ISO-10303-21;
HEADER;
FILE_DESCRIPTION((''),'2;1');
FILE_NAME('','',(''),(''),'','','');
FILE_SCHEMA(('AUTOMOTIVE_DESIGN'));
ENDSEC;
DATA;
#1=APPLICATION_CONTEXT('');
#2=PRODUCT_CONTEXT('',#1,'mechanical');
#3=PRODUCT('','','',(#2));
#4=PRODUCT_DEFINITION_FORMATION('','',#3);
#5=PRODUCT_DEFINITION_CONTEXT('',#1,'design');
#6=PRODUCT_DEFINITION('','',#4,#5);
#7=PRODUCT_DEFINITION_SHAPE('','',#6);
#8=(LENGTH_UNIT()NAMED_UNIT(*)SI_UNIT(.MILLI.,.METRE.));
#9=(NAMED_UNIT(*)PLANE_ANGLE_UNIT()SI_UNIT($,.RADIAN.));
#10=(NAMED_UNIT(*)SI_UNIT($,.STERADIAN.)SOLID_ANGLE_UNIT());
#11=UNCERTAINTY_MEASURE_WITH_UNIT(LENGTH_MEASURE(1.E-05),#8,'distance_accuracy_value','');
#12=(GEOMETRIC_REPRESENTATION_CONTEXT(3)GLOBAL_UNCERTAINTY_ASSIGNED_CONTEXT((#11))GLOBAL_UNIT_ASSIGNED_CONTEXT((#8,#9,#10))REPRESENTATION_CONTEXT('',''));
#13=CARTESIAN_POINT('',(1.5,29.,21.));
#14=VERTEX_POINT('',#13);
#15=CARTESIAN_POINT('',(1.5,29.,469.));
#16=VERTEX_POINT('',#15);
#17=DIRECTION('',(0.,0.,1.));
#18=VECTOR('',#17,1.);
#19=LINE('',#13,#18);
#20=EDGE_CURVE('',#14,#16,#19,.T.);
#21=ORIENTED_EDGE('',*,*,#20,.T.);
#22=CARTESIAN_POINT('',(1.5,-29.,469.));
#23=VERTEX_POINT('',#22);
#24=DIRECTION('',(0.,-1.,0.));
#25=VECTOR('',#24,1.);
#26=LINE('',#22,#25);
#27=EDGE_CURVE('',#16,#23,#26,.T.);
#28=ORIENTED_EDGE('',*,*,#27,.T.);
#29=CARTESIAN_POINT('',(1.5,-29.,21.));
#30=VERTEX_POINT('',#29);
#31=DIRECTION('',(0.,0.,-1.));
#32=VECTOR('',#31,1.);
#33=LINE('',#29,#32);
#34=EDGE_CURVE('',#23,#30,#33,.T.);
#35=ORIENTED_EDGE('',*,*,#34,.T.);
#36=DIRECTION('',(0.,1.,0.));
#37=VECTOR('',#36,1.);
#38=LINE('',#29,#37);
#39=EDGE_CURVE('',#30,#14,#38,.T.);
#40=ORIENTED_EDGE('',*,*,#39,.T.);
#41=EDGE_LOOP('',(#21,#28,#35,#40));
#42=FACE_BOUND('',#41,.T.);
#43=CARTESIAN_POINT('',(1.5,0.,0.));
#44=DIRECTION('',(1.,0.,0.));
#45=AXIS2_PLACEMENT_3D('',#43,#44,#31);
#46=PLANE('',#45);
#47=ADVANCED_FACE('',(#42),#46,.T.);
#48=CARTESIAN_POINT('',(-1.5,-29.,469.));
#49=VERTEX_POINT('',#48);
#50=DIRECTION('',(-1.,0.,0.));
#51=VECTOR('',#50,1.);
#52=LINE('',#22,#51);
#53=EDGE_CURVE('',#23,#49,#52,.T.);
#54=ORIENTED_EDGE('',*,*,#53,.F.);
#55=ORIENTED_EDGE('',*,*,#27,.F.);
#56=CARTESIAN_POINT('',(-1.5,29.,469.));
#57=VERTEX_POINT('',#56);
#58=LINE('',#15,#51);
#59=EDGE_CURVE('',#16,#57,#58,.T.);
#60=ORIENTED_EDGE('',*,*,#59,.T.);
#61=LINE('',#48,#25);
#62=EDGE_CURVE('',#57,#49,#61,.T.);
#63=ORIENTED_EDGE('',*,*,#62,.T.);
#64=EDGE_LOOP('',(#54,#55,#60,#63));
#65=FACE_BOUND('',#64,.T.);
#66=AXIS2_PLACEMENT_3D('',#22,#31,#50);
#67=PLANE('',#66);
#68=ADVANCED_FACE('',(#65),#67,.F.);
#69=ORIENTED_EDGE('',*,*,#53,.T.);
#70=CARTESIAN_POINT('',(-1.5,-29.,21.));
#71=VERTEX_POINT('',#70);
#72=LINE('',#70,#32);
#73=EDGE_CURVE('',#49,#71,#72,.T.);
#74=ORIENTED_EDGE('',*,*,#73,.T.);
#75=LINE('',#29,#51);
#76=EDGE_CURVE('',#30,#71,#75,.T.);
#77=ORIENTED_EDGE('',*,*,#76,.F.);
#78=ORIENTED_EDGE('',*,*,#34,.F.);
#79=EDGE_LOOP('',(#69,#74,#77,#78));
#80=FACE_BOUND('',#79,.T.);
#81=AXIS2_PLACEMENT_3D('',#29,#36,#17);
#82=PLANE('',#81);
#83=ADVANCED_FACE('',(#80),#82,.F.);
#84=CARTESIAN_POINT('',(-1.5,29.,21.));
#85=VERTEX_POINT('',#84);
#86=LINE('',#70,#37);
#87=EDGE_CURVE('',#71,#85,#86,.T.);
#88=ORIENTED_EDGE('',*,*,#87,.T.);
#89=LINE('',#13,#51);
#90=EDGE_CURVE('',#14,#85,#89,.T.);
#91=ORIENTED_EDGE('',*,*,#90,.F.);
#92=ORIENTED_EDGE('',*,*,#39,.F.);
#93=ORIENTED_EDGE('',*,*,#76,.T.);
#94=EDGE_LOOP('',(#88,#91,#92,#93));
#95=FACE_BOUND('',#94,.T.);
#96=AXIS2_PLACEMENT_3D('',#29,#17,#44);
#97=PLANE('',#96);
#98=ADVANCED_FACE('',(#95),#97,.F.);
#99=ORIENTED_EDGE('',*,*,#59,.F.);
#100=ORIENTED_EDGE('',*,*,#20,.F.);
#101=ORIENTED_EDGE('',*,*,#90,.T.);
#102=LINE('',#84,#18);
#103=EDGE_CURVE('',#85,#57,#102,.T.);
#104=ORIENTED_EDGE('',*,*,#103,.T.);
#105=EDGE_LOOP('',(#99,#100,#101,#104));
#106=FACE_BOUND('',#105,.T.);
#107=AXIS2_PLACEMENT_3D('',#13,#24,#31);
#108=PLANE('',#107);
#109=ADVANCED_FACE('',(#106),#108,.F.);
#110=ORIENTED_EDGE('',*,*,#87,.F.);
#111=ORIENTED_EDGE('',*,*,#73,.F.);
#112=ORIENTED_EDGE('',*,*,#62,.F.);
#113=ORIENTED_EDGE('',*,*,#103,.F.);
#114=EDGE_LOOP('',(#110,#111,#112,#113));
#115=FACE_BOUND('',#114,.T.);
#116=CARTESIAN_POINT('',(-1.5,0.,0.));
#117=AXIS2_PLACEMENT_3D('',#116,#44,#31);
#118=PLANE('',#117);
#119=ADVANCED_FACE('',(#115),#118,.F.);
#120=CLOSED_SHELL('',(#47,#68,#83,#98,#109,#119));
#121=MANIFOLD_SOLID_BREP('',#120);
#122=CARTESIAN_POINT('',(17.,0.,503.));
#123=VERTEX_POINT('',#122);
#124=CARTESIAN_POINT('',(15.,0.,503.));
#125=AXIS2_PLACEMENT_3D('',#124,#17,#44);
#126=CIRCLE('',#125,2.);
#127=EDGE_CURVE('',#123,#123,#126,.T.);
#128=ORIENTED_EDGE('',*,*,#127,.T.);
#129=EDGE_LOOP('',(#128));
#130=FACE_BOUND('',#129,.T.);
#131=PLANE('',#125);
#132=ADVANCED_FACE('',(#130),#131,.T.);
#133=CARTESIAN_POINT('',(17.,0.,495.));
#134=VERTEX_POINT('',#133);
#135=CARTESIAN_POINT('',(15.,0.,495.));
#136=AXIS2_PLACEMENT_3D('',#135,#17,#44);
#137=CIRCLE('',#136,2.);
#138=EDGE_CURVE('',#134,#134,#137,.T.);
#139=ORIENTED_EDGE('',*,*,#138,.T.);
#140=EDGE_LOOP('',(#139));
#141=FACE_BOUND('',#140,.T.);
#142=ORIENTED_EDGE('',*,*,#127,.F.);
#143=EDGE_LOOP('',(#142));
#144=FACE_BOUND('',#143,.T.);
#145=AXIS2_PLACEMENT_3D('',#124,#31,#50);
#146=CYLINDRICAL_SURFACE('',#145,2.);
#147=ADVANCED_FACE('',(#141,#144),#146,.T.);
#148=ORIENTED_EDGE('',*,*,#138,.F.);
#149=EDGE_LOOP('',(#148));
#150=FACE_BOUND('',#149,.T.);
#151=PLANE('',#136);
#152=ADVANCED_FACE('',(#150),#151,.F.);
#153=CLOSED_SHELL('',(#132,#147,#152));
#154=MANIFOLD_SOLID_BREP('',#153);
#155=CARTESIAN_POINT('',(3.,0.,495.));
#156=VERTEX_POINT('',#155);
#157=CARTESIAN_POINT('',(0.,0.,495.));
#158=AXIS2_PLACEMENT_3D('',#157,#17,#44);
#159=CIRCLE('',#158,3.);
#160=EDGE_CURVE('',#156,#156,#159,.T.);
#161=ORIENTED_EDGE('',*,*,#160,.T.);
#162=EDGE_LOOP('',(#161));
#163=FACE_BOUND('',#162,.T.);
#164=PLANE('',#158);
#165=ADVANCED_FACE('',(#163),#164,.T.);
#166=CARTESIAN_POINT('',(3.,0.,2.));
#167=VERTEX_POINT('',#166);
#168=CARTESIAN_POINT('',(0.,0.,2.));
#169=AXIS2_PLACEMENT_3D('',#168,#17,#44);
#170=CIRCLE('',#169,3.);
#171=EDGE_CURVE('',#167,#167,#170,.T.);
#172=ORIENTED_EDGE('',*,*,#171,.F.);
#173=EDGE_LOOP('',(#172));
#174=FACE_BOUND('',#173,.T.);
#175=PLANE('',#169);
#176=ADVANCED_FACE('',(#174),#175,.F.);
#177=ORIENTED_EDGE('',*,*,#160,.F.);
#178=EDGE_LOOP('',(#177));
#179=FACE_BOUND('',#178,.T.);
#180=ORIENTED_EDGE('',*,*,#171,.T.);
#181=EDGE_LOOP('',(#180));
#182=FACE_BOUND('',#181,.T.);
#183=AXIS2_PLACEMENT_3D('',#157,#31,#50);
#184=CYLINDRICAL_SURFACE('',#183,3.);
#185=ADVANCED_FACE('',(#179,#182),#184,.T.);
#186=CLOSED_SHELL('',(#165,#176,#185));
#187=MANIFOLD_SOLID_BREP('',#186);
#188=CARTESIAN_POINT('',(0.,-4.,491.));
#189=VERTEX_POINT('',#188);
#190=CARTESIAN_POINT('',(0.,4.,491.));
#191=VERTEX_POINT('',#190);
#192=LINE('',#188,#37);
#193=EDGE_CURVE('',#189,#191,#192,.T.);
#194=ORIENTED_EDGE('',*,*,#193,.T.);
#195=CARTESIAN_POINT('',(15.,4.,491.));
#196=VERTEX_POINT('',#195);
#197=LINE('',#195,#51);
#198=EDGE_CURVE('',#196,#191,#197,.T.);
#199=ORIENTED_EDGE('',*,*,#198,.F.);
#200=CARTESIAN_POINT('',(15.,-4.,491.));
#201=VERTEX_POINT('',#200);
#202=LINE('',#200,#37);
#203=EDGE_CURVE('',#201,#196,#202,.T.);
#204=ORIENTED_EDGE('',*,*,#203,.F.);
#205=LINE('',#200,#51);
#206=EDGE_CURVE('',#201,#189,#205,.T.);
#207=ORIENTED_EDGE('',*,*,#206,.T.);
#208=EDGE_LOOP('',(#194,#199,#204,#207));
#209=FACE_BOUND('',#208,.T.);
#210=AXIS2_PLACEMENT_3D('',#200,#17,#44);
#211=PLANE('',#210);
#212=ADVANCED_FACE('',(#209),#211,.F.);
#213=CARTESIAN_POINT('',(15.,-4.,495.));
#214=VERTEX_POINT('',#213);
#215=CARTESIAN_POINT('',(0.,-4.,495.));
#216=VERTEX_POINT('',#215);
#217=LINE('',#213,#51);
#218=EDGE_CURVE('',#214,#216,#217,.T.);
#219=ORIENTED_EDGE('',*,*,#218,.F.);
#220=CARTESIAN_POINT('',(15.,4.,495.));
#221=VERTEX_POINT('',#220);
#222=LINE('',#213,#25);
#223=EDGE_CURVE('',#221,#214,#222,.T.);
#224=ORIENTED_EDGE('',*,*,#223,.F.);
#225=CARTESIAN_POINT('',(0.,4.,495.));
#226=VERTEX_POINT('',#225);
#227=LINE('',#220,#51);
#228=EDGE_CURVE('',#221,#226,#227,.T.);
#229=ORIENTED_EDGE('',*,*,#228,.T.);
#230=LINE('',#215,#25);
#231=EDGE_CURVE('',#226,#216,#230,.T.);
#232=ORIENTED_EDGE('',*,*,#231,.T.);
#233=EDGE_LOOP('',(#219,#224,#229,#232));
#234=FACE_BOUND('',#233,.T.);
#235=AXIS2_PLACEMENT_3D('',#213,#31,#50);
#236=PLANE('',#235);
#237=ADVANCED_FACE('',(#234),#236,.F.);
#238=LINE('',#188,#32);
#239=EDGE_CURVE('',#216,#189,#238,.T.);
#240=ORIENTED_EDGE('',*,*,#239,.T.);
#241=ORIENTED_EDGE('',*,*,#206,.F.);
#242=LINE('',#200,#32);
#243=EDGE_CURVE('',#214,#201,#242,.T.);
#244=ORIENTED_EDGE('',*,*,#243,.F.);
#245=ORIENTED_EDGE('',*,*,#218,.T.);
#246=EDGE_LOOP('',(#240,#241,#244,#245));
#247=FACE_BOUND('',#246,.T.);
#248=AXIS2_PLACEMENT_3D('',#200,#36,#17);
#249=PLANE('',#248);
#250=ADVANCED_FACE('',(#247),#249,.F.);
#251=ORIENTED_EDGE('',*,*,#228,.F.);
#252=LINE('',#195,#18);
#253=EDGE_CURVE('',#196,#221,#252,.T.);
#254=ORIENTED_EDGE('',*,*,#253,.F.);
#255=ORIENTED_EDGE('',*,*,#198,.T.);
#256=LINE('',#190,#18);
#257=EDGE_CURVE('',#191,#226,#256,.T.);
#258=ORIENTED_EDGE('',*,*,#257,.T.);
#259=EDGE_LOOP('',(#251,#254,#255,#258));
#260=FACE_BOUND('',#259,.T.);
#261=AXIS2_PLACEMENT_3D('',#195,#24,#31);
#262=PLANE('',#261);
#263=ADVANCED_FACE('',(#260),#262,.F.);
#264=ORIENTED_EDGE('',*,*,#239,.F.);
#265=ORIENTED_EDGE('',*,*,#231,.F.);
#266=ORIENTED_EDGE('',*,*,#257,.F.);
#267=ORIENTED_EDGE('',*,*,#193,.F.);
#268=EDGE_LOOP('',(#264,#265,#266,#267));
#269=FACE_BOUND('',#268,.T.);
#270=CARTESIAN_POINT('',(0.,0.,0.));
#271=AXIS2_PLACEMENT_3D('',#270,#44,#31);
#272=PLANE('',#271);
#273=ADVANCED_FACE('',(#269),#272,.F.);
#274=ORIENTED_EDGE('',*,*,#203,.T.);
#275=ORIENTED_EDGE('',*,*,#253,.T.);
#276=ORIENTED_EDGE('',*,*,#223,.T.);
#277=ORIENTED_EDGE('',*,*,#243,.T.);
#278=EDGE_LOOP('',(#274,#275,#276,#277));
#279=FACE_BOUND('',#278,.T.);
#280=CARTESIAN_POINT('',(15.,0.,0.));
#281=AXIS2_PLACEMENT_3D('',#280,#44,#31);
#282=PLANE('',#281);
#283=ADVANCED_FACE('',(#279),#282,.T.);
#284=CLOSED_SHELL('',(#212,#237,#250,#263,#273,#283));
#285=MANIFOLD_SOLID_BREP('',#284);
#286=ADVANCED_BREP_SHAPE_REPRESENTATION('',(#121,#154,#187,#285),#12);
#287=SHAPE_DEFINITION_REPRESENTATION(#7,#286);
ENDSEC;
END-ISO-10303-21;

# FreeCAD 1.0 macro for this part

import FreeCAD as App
import Part
import Sketcher

V = App.Vector
Q = App.Units.Quantity


def add_polygon(sketch, points):
    """Adds a closed chain of lines whose ends are joined by coincident constraints."""
    first, n = sketch.GeometryCount, len(points)
    for a, b in zip(points, points[1:] + points[:1]):
        sketch.addGeometry(Part.LineSegment(App.Vector(*a, 0), App.Vector(*b, 0)), False)
    for i in range(n):
        sketch.addConstraint(Sketcher.Constraint("Coincident", first + i, 2, first + (i + 1) % n, 1))

doc = App.newDocument("Part")
body = doc.addObject("PartDesign::Body", "Body")

# Sketch on YZ plane
sketch1 = body.newObject("Sketcher::SketchObject", "Sketch")
sketch1.AttachmentSupport = (doc.getObject("YZ_Plane"), [""])
sketch1.MapMode = "FlatFace"
add_polygon(sketch1, [(4, 495), (-4, 495), (-4, 491), (4, 491)])  # lines 0-3
sketch1.addConstraint([
    Sketcher.Constraint("Horizontal", 0),
    Sketcher.Constraint("Vertical", 1),
    Sketcher.Constraint("Horizontal", 2),
    Sketcher.Constraint("Vertical", 3),
    Sketcher.Constraint("DistanceX", 0, 2, 0, 1, Q("8 mm")),
    Sketcher.Constraint("DistanceY", 1, 2, 1, 1, Q("4 mm")),
    Sketcher.Constraint("DistanceX", 0, 2, -1, 1, Q("4 mm")),
    Sketcher.Constraint("DistanceY", -1, 1, 0, 2, Q("495 mm")),
])
pad1 = body.newObject("PartDesign::Pad", "Pad")
pad1.Profile = sketch1
pad1.Length = 15
body2 = doc.addObject("PartDesign::Body", "Body001")

# Sketch on YZ plane
sketch2 = body2.newObject("Sketcher::SketchObject", "Sketch001")
sketch2.AttachmentSupport = (doc.getObject("YZ_Plane001"), [""])
sketch2.MapMode = "FlatFace"
sketch2.AttachmentOffset = App.Placement(V(0, 0, -1.5), App.Rotation())
add_polygon(sketch2, [(29, 469), (-29, 469), (-29, 21), (29, 21)])  # lines 0-3
sketch2.addConstraint([
    Sketcher.Constraint("Horizontal", 0),
    Sketcher.Constraint("Vertical", 1),
    Sketcher.Constraint("Horizontal", 2),
    Sketcher.Constraint("Vertical", 3),
    Sketcher.Constraint("DistanceX", 0, 2, 0, 1, Q("58 mm")),
    Sketcher.Constraint("DistanceY", 1, 2, 1, 1, Q("448 mm")),
    Sketcher.Constraint("DistanceX", 0, 2, -1, 1, Q("29 mm")),
    Sketcher.Constraint("DistanceY", -1, 1, 0, 2, Q("469 mm")),
])
pad2 = body2.newObject("PartDesign::Pad", "Pad001")
pad2.Profile = sketch2
pad2.Length = 3
body3 = doc.addObject("PartDesign::Body", "Body002")

# Sketch on XY plane
sketch3 = body3.newObject("Sketcher::SketchObject", "Sketch002")
sketch3.AttachmentSupport = (doc.getObject("XY_Plane002"), [""])
sketch3.MapMode = "FlatFace"
sketch3.AttachmentOffset = App.Placement(V(0, 0, 2), App.Rotation())
sketch3.addGeometry(Part.Circle(V(0, 0, 0), V(0, 0, 1), 3), False)
sketch3.addConstraint([
    Sketcher.Constraint("Coincident", 0, 3, -1, 1),
    Sketcher.Constraint("Diameter", 0, Q("6 mm")),
])
pad3 = body3.newObject("PartDesign::Pad", "Pad002")
pad3.Profile = sketch3
pad3.Length = 493
body4 = doc.addObject("PartDesign::Body", "Body003")

# Sketch on XY plane
sketch4 = body4.newObject("Sketcher::SketchObject", "Sketch003")
sketch4.AttachmentSupport = (doc.getObject("XY_Plane003"), [""])
sketch4.MapMode = "FlatFace"
sketch4.AttachmentOffset = App.Placement(V(0, 0, 495), App.Rotation())
sketch4.addGeometry(Part.Circle(V(15, 0, 0), V(0, 0, 1), 2), False)
sketch4.addConstraint([
    Sketcher.Constraint("PointOnObject", 0, 3, -1),
    Sketcher.Constraint("Diameter", 0, Q("4 mm")),
    Sketcher.Constraint("DistanceX", -1, 1, 0, 3, Q("15 mm")),
])
pad4 = body4.newObject("PartDesign::Pad", "Pad003")
pad4.Profile = sketch4
pad4.Length = 8

doc.recompute()
